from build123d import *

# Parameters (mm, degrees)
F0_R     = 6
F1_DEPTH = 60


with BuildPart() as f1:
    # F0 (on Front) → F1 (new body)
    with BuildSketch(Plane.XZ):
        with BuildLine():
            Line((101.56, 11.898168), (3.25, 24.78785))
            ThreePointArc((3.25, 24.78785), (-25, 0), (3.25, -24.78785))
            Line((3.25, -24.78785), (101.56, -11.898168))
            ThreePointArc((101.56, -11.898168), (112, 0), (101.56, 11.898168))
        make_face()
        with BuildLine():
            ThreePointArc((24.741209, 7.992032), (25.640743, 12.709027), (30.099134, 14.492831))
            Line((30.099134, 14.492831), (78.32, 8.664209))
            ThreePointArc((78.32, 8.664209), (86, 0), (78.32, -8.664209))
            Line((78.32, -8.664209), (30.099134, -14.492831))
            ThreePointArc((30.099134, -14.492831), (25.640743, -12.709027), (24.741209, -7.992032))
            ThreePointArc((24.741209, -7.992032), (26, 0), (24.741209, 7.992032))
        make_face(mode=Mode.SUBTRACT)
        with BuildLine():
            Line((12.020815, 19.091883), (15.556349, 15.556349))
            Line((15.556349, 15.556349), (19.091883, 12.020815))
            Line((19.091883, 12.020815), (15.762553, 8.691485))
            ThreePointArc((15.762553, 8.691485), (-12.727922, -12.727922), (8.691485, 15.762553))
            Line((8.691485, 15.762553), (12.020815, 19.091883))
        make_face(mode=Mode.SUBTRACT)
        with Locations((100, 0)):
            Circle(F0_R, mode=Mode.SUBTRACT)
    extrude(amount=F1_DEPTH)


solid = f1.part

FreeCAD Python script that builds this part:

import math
import FreeCAD as App
import Part
import Sketcher
Q = App.Units.Quantity

doc = App.newDocument("Part")
body = doc.addObject("PartDesign::Body", "Body")

sketch1 = body.newObject("Sketcher::SketchObject", "Sketch")
sketch1.AttachmentSupport = (doc.getObject("XZ_Plane"), [""])
sketch1.MapMode = "FlatFace"
sketch1.addGeometry(Part.LineSegment(App.Vector(101.56, 11.898168, 0), App.Vector(3.25, 24.78785, 0)), False)
sketch1.addGeometry(Part.ArcOfCircle(Part.Circle(App.Vector(0, 0, 0), App.Vector(0, 0, 1), 25), math.radians(82.530408), math.radians(277.469592)), False)
sketch1.addGeometry(Part.LineSegment(App.Vector(3.25, -24.78785, 0), App.Vector(101.56, -11.898168, 0)), False)
sketch1.addGeometry(Part.ArcOfCircle(Part.Circle(App.Vector(100, 0, 0), App.Vector(0, 0, 1), 12), math.radians(-82.530407), math.radians(82.530407)), False)
sketch1.addGeometry(Part.ArcOfCircle(Part.Circle(App.Vector(0.000001, 0, 0), App.Vector(0, 0, 1), 25.999999), math.radians(-17.90176), math.radians(17.90176)), False)
sketch1.addGeometry(Part.ArcOfCircle(Part.Circle(App.Vector(29.499135, 9.528961, 0), App.Vector(0, 0, 1), 5.000001), math.radians(83.107905), math.radians(197.901753)), False)
sketch1.addGeometry(Part.LineSegment(App.Vector(30.099134, 14.492831, 0), App.Vector(78.32, 8.664209, 0)), False)
sketch1.addGeometry(Part.ArcOfCircle(Part.Circle(App.Vector(77.272727, 0, 0), App.Vector(0, 0, 1), 8.727273), math.radians(-83.107894), math.radians(83.107894)), False)
sketch1.addGeometry(Part.LineSegment(App.Vector(78.32, -8.664209, 0), App.Vector(30.099134, -14.492831, 0)), False)
sketch1.addGeometry(Part.ArcOfCircle(Part.Circle(App.Vector(29.499135, -9.528961, 0), App.Vector(0, 0, 1), 5.000001), math.radians(162.098247), math.radians(276.892095)), False)
sketch1.addGeometry(Part.Circle(App.Vector(100, 0, 0), App.Vector(0, 0, 1), 6), False)
sketch1.addGeometry(Part.LineSegment(App.Vector(8.691485, 15.762553, 0), App.Vector(12.020815, 19.091883, 0)), False)
sketch1.addGeometry(Part.LineSegment(App.Vector(12.020815, 19.091883, 0), App.Vector(19.091883, 12.020815, 0)), False)
sketch1.addGeometry(Part.LineSegment(App.Vector(19.091883, 12.020815, 0), App.Vector(15.762553, 8.691485, 0)), False)
sketch1.addGeometry(Part.ArcOfCircle(Part.Circle(App.Vector(0, 0, 0), App.Vector(0, 0, 1), 18), math.radians(61.127621), math.radians(388.872379)), False)
sketch1.addConstraint(Sketcher.Constraint("Tangent", 0, 2, 1, 1))
sketch1.addConstraint(Sketcher.Constraint("Tangent", 1, 2, 2, 1))
sketch1.addConstraint(Sketcher.Constraint("Tangent", 2, 2, 3, 1))
sketch1.addConstraint(Sketcher.Constraint("Tangent", 3, 2, 0, 1))
sketch1.addConstraint(Sketcher.Constraint("Tangent", 4, 2, 5, 2))
sketch1.addConstraint(Sketcher.Constraint("Tangent", 5, 1, 6, 1))
sketch1.addConstraint(Sketcher.Constraint("Tangent", 6, 2, 7, 2))
sketch1.addConstraint(Sketcher.Constraint("Tangent", 7, 1, 8, 1))
sketch1.addConstraint(Sketcher.Constraint("Tangent", 8, 2, 9, 2))
sketch1.addConstraint(Sketcher.Constraint("Tangent", 9, 1, 4, 1))
sketch1.addConstraint(Sketcher.Constraint("Coincident", 11, 2, 12, 1))
sketch1.addConstraint(Sketcher.Constraint("Coincident", 12, 2, 13, 1))
sketch1.addConstraint(Sketcher.Constraint("Coincident", 13, 2, 14, 2))
sketch1.addConstraint(Sketcher.Constraint("Coincident", 14, 1, 11, 1))
sketch1.addConstraint(Sketcher.Constraint("Coincident", 1, 3, -1, 1))
sketch1.addConstraint(Sketcher.Constraint("Coincident", 4, 3, -1, 1))
sketch1.addConstraint(Sketcher.Constraint("Coincident", 14, 3, -1, 1))
sketch1.addConstraint(Sketcher.Constraint("Coincident", 10, 3, 3, 3))
sketch1.addConstraint(Sketcher.Constraint("Equal", 5, 9))
sketch1.addConstraint(Sketcher.Constraint("Symmetric", 6, 2, 7, 1, -1))
sketch1.addConstraint(Sketcher.Constraint("PointOnObject", 3, 3, -1))
sketch1.addConstraint(Sketcher.Constraint("Perpendicular", 11, 12))
sketch1.addConstraint(Sketcher.Constraint("Perpendicular", 12, 13))
sketch1.addConstraint(Sketcher.Constraint("Equal", 11, 13))
sketch1.addConstraint(Sketcher.Constraint("Diameter", 10, 12.0))
sketch1.addConstraint(Sketcher.Constraint("Radius", 1, 25.0))
sketch1.addConstraint(Sketcher.Constraint("Radius", 3, 12.0))
sketch1.addConstraint(Sketcher.Constraint("Radius", 4, 25.999999))
sketch1.addConstraint(Sketcher.Constraint("Radius", 5, 5.000001))
sketch1.addConstraint(Sketcher.Constraint("Radius", 14, 18.0))
sketch1.addConstraint(Sketcher.Constraint("Angle", 11, Q("45 deg")))
sketch1.addConstraint(Sketcher.Constraint("Distance", 12, 10.0))
sketch1.addConstraint(Sketcher.Constraint("DistanceX", -1, 1, 3, 3, 100.0))
sketch1.addConstraint(Sketcher.Constraint("DistanceX", 5, 3, 5, 1, 0.599999))
sketch1.addConstraint(Sketcher.Constraint("DistanceX", -1, 1, 6, 2, 78.32))
sketch1.addConstraint(Sketcher.Constraint("Radius", 7, 8.727273))
sketch1.addConstraint(Sketcher.Constraint("DistanceY", 4, 2, 11, 2, 11.099851))
pad1 = body.newObject("PartDesign::Pad", "Pad")
pad1.Profile = sketch1
pad1.Length = 60

doc.recompute()
